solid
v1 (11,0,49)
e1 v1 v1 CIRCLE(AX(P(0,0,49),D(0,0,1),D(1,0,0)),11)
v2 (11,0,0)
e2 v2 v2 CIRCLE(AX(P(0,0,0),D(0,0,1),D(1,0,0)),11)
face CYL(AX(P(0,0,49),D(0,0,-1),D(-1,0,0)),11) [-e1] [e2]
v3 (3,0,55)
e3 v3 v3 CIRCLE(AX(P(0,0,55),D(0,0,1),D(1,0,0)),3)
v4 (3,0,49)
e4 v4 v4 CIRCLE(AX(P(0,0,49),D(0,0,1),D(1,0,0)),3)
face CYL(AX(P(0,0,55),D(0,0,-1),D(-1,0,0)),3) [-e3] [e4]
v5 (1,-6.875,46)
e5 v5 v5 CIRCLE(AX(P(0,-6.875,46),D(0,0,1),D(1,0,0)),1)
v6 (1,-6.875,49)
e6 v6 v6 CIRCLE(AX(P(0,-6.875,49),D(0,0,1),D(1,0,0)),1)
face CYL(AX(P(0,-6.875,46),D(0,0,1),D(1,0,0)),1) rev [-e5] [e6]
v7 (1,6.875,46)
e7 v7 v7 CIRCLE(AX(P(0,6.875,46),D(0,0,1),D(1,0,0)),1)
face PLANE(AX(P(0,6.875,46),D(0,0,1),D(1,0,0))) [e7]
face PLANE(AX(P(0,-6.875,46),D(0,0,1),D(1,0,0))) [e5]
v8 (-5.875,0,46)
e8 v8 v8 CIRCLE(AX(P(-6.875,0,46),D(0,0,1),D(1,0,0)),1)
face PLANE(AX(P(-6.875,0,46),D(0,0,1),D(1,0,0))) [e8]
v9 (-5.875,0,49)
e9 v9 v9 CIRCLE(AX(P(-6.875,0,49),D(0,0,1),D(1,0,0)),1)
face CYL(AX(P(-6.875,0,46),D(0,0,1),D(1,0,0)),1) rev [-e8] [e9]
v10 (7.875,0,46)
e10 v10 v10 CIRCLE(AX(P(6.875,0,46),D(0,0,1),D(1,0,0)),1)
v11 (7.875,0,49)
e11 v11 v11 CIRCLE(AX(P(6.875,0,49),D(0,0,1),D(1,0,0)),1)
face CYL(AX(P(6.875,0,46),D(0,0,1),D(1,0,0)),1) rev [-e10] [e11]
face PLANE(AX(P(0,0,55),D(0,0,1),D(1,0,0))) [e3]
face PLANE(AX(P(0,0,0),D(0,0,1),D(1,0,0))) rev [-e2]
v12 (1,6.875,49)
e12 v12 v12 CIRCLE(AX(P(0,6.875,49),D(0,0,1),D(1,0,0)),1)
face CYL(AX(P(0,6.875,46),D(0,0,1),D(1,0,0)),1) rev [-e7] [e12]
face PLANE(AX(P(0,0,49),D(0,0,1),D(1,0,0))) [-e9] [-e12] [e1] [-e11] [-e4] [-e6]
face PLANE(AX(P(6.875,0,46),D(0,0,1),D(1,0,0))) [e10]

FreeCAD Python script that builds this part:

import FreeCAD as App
import Part
import Sketcher

doc = App.newDocument("Part")
params = doc.addObject("Spreadsheet::Sheet", "Params")
for row, (alias, value) in enumerate([
    ("sketch1_diameter", "22 mm"),
    ("pad1_length", "49 mm"),
    ("sketch2_diameter", "2 mm"),
    ("pocket1_length", "3 mm"),
    ("sketch3_diameter", "6 mm"),
    ("pad2_length", "6 mm"),
], start=1):
    params.set(f"A{row}", alias)
    params.set(f"B{row}", "=" + value)
    params.setAlias(f"B{row}", alias)

body = doc.addObject("PartDesign::Body", "Body")

# Sketch on XY plane
sketch1 = doc.addObject("Sketcher::SketchObject", "Sketch")
body.addObject(sketch1)
sketch1.AttachmentSupport = (doc.XY_Plane, [""])
sketch1.MapMode = "FlatFace"
sketch1.addGeometry(Part.Circle(App.Vector(0, 0, 0), App.Vector(0, 0, 1), 11), False)
sketch1.addConstraint(Sketcher.Constraint("Coincident", 0, 3, -1, 1))
sketch1.addConstraint(Sketcher.Constraint("Diameter", 0, 22.0))
sketch1.setExpression("Constraints[1]", "Params.sketch1_diameter")
pad1 = doc.addObject("PartDesign::Pad", "Pad")
body.addObject(pad1)
pad1.Profile = sketch1
pad1.setExpression("Length", "Params.pad1_length")

# Sketch on XY plane
sketch2 = doc.addObject("Sketcher::SketchObject", "Sketch001")
body.addObject(sketch2)
sketch2.AttachmentSupport = (doc.XY_Plane, [""])
sketch2.MapMode = "FlatFace"
sketch2.AttachmentOffset = App.Placement(App.Vector(0, 0, 49), App.Rotation())
sketch2.addGeometry(Part.Circle(App.Vector(6.9, 0, 0), App.Vector(0, 0, 1), 1), False)
sketch2.addGeometry(Part.Circle(App.Vector(0, -6.9, 0), App.Vector(0, 0, 1), 1), False)
sketch2.addGeometry(Part.Circle(App.Vector(-6.9, 0, 0), App.Vector(0, 0, 1), 1), False)
sketch2.addGeometry(Part.Circle(App.Vector(0, 6.9, 0), App.Vector(0, 0, 1), 1), False)
sketch2.addConstraint(Sketcher.Constraint("Equal", 0, 1))
sketch2.addConstraint(Sketcher.Constraint("Equal", 1, 2))
sketch2.addConstraint(Sketcher.Constraint("Equal", 2, 3))
sketch2.addConstraint(Sketcher.Constraint("Symmetric", 0, 3, 2, 3, -1, 1))
sketch2.addConstraint(Sketcher.Constraint("Symmetric", 1, 3, 3, 3, -1, 1))
sketch2.addConstraint(Sketcher.Constraint("PointOnObject", 0, 3, -1))
sketch2.addConstraint(Sketcher.Constraint("PointOnObject", 1, 3, -2))
sketch2.addConstraint(Sketcher.Constraint("Diameter", 0, 2.0))
sketch2.addConstraint(Sketcher.Constraint("DistanceX", 2, 3, 0, 3, 13.75))
sketch2.addConstraint(Sketcher.Constraint("DistanceY", 1, 3, 3, 3, 13.75))
sketch2.setExpression("Constraints[7]", "Params.sketch2_diameter")
pocket1 = doc.addObject("PartDesign::Pocket", "Pocket")
body.addObject(pocket1)
pocket1.Profile = sketch2
pocket1.setExpression("Length", "Params.pocket1_length")

# Sketch on XY plane
sketch3 = doc.addObject("Sketcher::SketchObject", "Sketch002")
body.addObject(sketch3)
sketch3.AttachmentSupport = (doc.XY_Plane, [""])
sketch3.MapMode = "FlatFace"
sketch3.AttachmentOffset = App.Placement(App.Vector(0, 0, 49), App.Rotation())
sketch3.addGeometry(Part.Circle(App.Vector(0, 0, 0), App.Vector(0, 0, 1), 3), False)
sketch3.addConstraint(Sketcher.Constraint("Coincident", 0, 3, -1, 1))
sketch3.addConstraint(Sketcher.Constraint("Diameter", 0, 6.0))
sketch3.setExpression("Constraints[1]", "Params.sketch3_diameter")
pad2 = doc.addObject("PartDesign::Pad", "Pad001")
body.addObject(pad2)
pad2.Profile = sketch3
pad2.setExpression("Length", "Params.pad2_length")

doc.recompute()
